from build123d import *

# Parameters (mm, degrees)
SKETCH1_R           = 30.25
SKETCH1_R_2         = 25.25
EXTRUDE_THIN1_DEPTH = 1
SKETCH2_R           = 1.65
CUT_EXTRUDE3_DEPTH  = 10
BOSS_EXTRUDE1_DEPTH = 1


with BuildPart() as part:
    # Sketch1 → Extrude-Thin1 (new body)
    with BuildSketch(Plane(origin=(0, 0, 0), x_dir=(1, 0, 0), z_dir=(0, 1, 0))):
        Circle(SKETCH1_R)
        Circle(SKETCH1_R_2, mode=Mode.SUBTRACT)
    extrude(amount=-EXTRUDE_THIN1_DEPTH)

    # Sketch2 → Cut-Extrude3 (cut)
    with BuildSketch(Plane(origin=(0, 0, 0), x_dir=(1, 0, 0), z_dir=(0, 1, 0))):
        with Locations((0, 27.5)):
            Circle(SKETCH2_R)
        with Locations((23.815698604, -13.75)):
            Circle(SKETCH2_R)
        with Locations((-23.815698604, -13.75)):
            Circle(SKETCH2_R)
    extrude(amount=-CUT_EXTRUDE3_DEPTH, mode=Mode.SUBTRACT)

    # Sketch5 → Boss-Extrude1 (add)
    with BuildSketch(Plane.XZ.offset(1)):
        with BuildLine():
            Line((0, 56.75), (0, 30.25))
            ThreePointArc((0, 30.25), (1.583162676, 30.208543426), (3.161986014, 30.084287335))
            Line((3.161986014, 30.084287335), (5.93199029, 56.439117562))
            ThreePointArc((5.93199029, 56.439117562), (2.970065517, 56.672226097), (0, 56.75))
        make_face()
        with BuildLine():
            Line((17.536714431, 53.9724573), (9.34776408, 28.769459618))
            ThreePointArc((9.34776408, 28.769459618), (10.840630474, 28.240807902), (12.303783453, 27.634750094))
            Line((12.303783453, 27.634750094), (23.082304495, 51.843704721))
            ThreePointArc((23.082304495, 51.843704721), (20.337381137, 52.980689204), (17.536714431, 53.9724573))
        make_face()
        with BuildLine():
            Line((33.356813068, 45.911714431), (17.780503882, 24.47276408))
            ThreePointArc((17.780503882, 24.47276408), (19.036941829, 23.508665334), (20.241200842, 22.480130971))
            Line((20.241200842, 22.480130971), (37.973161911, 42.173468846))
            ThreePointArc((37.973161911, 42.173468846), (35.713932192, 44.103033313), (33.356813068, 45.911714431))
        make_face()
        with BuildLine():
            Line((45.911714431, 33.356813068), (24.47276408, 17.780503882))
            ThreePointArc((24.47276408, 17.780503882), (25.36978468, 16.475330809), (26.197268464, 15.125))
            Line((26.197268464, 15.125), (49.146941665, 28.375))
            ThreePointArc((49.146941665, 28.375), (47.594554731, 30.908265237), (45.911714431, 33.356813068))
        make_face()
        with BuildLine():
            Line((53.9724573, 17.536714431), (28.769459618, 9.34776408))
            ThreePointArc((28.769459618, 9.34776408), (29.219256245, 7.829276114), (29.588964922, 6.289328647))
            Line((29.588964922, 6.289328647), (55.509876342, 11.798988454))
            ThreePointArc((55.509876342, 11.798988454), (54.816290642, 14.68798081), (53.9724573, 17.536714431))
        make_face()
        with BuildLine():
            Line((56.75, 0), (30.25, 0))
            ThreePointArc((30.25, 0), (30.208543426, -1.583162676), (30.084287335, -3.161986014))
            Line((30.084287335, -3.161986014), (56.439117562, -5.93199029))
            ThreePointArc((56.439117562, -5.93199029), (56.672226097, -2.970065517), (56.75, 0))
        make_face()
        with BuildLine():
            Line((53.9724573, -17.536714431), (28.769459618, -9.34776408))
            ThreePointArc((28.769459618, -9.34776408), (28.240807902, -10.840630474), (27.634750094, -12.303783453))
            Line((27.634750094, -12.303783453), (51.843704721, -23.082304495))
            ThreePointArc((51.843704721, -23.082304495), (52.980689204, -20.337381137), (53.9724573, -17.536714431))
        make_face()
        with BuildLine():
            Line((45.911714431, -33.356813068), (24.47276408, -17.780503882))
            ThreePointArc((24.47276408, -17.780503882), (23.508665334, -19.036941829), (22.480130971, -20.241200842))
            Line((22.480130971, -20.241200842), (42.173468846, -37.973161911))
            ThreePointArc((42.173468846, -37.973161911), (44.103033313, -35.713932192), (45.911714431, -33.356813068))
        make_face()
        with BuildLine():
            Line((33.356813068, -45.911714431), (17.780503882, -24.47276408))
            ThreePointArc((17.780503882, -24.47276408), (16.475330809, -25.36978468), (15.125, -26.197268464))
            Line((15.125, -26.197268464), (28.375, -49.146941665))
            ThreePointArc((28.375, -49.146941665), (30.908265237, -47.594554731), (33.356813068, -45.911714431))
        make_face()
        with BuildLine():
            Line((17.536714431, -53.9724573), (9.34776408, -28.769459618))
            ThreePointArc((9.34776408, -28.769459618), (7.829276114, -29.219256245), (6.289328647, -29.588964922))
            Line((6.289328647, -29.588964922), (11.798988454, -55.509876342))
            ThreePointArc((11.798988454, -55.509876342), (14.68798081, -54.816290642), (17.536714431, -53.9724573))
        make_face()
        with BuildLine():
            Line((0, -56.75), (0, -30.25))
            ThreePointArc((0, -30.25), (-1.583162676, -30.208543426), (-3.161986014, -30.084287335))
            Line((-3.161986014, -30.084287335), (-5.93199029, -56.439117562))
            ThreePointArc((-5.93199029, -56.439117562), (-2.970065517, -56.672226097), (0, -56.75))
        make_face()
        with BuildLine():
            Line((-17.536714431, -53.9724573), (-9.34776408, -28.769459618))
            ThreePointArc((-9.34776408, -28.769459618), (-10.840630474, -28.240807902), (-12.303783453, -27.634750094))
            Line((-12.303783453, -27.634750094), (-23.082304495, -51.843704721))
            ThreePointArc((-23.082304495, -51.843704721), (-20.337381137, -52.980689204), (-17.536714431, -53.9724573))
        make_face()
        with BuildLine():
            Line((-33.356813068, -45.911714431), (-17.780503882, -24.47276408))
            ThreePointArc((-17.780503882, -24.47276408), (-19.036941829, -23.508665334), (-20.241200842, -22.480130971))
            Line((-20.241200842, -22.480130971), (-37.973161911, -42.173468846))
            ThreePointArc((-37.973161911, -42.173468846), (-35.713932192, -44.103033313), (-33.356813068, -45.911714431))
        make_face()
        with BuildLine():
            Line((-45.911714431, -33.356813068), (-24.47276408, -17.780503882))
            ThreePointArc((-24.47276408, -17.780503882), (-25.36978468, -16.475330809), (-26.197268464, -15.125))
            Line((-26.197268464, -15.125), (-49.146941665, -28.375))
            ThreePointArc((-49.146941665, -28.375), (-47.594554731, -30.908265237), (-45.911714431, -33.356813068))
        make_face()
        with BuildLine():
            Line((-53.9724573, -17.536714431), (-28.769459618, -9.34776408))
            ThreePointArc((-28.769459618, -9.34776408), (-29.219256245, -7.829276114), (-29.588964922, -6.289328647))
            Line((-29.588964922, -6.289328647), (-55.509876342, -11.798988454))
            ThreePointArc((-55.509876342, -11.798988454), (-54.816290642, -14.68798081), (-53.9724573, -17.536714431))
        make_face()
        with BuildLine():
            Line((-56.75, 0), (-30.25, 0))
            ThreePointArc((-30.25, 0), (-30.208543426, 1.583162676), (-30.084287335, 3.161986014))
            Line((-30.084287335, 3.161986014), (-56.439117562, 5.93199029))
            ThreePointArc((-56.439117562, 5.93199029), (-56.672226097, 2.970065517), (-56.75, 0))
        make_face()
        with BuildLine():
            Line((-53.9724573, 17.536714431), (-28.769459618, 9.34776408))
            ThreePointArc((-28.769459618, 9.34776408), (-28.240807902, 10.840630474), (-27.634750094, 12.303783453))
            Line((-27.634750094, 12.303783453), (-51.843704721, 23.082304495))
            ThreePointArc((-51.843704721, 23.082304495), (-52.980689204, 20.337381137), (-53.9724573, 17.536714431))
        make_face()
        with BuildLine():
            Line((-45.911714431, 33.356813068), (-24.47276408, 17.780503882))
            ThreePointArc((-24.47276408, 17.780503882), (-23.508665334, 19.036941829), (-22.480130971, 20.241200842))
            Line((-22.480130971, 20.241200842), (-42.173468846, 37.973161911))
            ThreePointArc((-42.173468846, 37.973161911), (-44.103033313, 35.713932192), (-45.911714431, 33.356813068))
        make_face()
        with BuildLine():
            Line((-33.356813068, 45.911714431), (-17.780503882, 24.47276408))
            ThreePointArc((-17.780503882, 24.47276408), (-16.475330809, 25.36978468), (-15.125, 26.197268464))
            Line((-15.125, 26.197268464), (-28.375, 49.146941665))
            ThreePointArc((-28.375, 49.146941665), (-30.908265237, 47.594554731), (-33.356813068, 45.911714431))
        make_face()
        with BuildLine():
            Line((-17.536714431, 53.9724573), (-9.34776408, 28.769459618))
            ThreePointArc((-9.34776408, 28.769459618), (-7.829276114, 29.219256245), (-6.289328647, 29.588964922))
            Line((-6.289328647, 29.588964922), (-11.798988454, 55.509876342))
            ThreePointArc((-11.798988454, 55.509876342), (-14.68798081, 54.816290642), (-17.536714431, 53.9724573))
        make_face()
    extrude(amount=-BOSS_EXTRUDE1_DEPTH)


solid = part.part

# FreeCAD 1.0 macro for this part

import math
import FreeCAD as App
import Part
import Sketcher
Q = App.Units.Quantity

doc = App.newDocument("Part")
body = doc.addObject("PartDesign::Body", "Body")

# Sketch on XZ plane
sketch1 = body.newObject("Sketcher::SketchObject", "Sketch")
sketch1.AttachmentSupport = (doc.getObject("XZ_Plane"), [""])
sketch1.MapMode = "FlatFace"
sketch1.addGeometry(Part.Circle(App.Vector(0, 0, 0), App.Vector(0, 0, 1), 30.25), False)
sketch1.addGeometry(Part.Circle(App.Vector(0, 0, 0), App.Vector(0, 0, 1), 25.25), False)
sketch1.addConstraint(Sketcher.Constraint("Coincident", 0, 3, -1, 1))
sketch1.addConstraint(Sketcher.Constraint("Coincident", 1, 3, -1, 1))
sketch1.addConstraint(Sketcher.Constraint("Diameter", 0, 60.5))
sketch1.addConstraint(Sketcher.Constraint("Diameter", 1, 50.5))
pad1 = body.newObject("PartDesign::Pad", "Pad")
pad1.Profile = sketch1
pad1.Length = 1

# Sketch on XZ plane
sketch2 = body.newObject("Sketcher::SketchObject", "Sketch001")
sketch2.AttachmentSupport = (doc.getObject("XZ_Plane"), [""])
sketch2.MapMode = "FlatFace"
sketch2.addGeometry(Part.Circle(App.Vector(0, -27.5, 0), App.Vector(0, 0, 1), 1.65), False)
sketch2.addGeometry(Part.Circle(App.Vector(23.815699, 13.75, 0), App.Vector(0, 0, 1), 1.65), False)
sketch2.addGeometry(Part.Circle(App.Vector(-23.815699, 13.75, 0), App.Vector(0, 0, 1), 1.65), False)
sketch2.addConstraint(Sketcher.Constraint("Equal", 0, 1))
sketch2.addConstraint(Sketcher.Constraint("Equal", 1, 2))
sketch2.addConstraint(Sketcher.Constraint("Symmetric", 1, 3, 2, 3, -2))
sketch2.addConstraint(Sketcher.Constraint("PointOnObject", 0, 3, -2))
sketch2.addConstraint(Sketcher.Constraint("Diameter", 0, 3.3))
sketch2.addConstraint(Sketcher.Constraint("DistanceY", 0, 3, -1, 1, 27.5))
sketch2.addConstraint(Sketcher.Constraint("DistanceY", -1, 1, 1, 3, 13.75))
sketch2.addConstraint(Sketcher.Constraint("DistanceX", -1, 1, 1, 3, 23.815699))
pocket1 = body.newObject("PartDesign::Pocket", "Pocket")
pocket1.Profile = sketch2
pocket1.Length = 10
pocket1.Reversed = True

# Sketch on XZ plane
sketch3 = body.newObject("Sketcher::SketchObject", "Sketch002")
sketch3.AttachmentSupport = (doc.getObject("XZ_Plane"), [""])
sketch3.MapMode = "FlatFace"
sketch3.AttachmentOffset = App.Placement(App.Vector(0, 0, 1), App.Rotation())
sketch3.addGeometry(Part.LineSegment(App.Vector(0, 56.75, 0), App.Vector(0, 30.25, 0)), False)
sketch3.addGeometry(Part.ArcOfCircle(Part.Circle(App.Vector(0, 0, 0), App.Vector(0, 0, 1), 30.25), math.radians(84), math.radians(90)), False)
sketch3.addGeometry(Part.LineSegment(App.Vector(3.161986, 30.084287, 0), App.Vector(5.93199, 56.439118, 0)), False)
sketch3.addGeometry(Part.ArcOfCircle(Part.Circle(App.Vector(0, 0, 0), App.Vector(0, 0, 1), 56.75), math.radians(84), math.radians(90)), False)
sketch3.addGeometry(Part.LineSegment(App.Vector(17.536714, 53.972457, 0), App.Vector(9.347764, 28.76946, 0)), False)
sketch3.addGeometry(Part.ArcOfCircle(Part.Circle(App.Vector(0, 0, 0), App.Vector(0, 0, 1), 30.25), math.radians(66), math.radians(72)), False)
sketch3.addGeometry(Part.LineSegment(App.Vector(12.303783, 27.63475, 0), App.Vector(23.082304, 51.843705, 0)), False)
sketch3.addGeometry(Part.ArcOfCircle(Part.Circle(App.Vector(0, 0, 0), App.Vector(0, 0, 1), 56.75), math.radians(66), math.radians(72)), False)
sketch3.addGeometry(Part.LineSegment(App.Vector(33.356813, 45.911714, 0), App.Vector(17.780504, 24.472764, 0)), False)
sketch3.addGeometry(Part.ArcOfCircle(Part.Circle(App.Vector(0, 0, 0), App.Vector(0, 0, 1), 30.25), math.radians(48), math.radians(54)), False)
sketch3.addGeometry(Part.LineSegment(App.Vector(20.241201, 22.480131, 0), App.Vector(37.973162, 42.173469, 0)), False)
sketch3.addGeometry(Part.ArcOfCircle(Part.Circle(App.Vector(0, 0, 0), App.Vector(0, 0, 1), 56.75), math.radians(48), math.radians(54)), False)
sketch3.addGeometry(Part.LineSegment(App.Vector(45.911714, 33.356813, 0), App.Vector(24.472764, 17.780504, 0)), False)
sketch3.addGeometry(Part.ArcOfCircle(Part.Circle(App.Vector(0, 0, 0), App.Vector(0, 0, 1), 30.25), math.radians(30), math.radians(36)), False)
sketch3.addGeometry(Part.LineSegment(App.Vector(26.197268, 15.125, 0), App.Vector(49.146942, 28.375, 0)), False)
sketch3.addGeometry(Part.ArcOfCircle(Part.Circle(App.Vector(0, 0, 0), App.Vector(0, 0, 1), 56.75), math.radians(30), math.radians(36)), False)
sketch3.addGeometry(Part.LineSegment(App.Vector(53.972457, 17.536714, 0), App.Vector(28.76946, 9.347764, 0)), False)
sketch3.addGeometry(Part.ArcOfCircle(Part.Circle(App.Vector(0, 0, 0), App.Vector(0, 0, 1), 30.25), math.radians(12), math.radians(18)), False)
sketch3.addGeometry(Part.LineSegment(App.Vector(29.588965, 6.289329, 0), App.Vector(55.509876, 11.798988, 0)), False)
sketch3.addGeometry(Part.ArcOfCircle(Part.Circle(App.Vector(0, 0, 0), App.Vector(0, 0, 1), 56.75), math.radians(12), math.radians(18)), False)
sketch3.addGeometry(Part.LineSegment(App.Vector(56.75, 0, 0), App.Vector(30.25, 0, 0)), False)
sketch3.addGeometry(Part.ArcOfCircle(Part.Circle(App.Vector(0, 0, 0), App.Vector(0, 0, 1), 30.25), math.radians(-6), math.radians(0)), False)
sketch3.addGeometry(Part.LineSegment(App.Vector(30.084287, -3.161986, 0), App.Vector(56.439118, -5.93199, 0)), False)
sketch3.addGeometry(Part.ArcOfCircle(Part.Circle(App.Vector(0, 0, 0), App.Vector(0, 0, 1), 56.75), math.radians(-6), math.radians(0)), False)
sketch3.addGeometry(Part.LineSegment(App.Vector(53.972457, -17.536714, 0), App.Vector(28.76946, -9.347764, 0)), False)
sketch3.addGeometry(Part.ArcOfCircle(Part.Circle(App.Vector(0, 0, 0), App.Vector(0, 0, 1), 30.25), math.radians(-24), math.radians(-18)), False)
sketch3.addGeometry(Part.LineSegment(App.Vector(27.63475, -12.303783, 0), App.Vector(51.843705, -23.082304, 0)), False)
sketch3.addGeometry(Part.ArcOfCircle(Part.Circle(App.Vector(0, 0, 0), App.Vector(0, 0, 1), 56.75), math.radians(-24), math.radians(-18)), False)
sketch3.addGeometry(Part.LineSegment(App.Vector(45.911714, -33.356813, 0), App.Vector(24.472764, -17.780504, 0)), False)
sketch3.addGeometry(Part.ArcOfCircle(Part.Circle(App.Vector(0, 0, 0), App.Vector(0, 0, 1), 30.25), math.radians(-42), math.radians(-36)), False)
sketch3.addGeometry(Part.LineSegment(App.Vector(22.480131, -20.241201, 0), App.Vector(42.173469, -37.973162, 0)), False)
sketch3.addGeometry(Part.ArcOfCircle(Part.Circle(App.Vector(0, 0, 0), App.Vector(0, 0, 1), 56.75), math.radians(-42), math.radians(-36)), False)
sketch3.addGeometry(Part.LineSegment(App.Vector(33.356813, -45.911714, 0), App.Vector(17.780504, -24.472764, 0)), False)
sketch3.addGeometry(Part.ArcOfCircle(Part.Circle(App.Vector(0, 0, 0), App.Vector(0, 0, 1), 30.25), math.radians(-60), math.radians(-54)), False)
sketch3.addGeometry(Part.LineSegment(App.Vector(15.125, -26.197268, 0), App.Vector(28.375, -49.146942, 0)), False)
sketch3.addGeometry(Part.ArcOfCircle(Part.Circle(App.Vector(0, 0, 0), App.Vector(0, 0, 1), 56.75), math.radians(-60), math.radians(-54)), False)
sketch3.addGeometry(Part.LineSegment(App.Vector(17.536714, -53.972457, 0), App.Vector(9.347764, -28.76946, 0)), False)
sketch3.addGeometry(Part.ArcOfCircle(Part.Circle(App.Vector(0, 0, 0), App.Vector(0, 0, 1), 30.25), math.radians(-78), math.radians(-72)), False)
sketch3.addGeometry(Part.LineSegment(App.Vector(6.289329, -29.588965, 0), App.Vector(11.798988, -55.509876, 0)), False)
sketch3.addGeometry(Part.ArcOfCircle(Part.Circle(App.Vector(0, 0, 0), App.Vector(0, 0, 1), 56.75), math.radians(-78), math.radians(-72)), False)
sketch3.addGeometry(Part.LineSegment(App.Vector(0, -56.75, 0), App.Vector(0, -30.25, 0)), False)
sketch3.addGeometry(Part.ArcOfCircle(Part.Circle(App.Vector(0, 0, 0), App.Vector(0, 0, 1), 30.25), math.radians(-96), math.radians(-90)), False)
sketch3.addGeometry(Part.LineSegment(App.Vector(-3.161986, -30.084287, 0), App.Vector(-5.93199, -56.439118, 0)), False)
sketch3.addGeometry(Part.ArcOfCircle(Part.Circle(App.Vector(0, 0, 0), App.Vector(0, 0, 1), 56.75), math.radians(-96), math.radians(-90)), False)
sketch3.addGeometry(Part.LineSegment(App.Vector(-17.536714, -53.972457, 0), App.Vector(-9.347764, -28.76946, 0)), False)
sketch3.addGeometry(Part.ArcOfCircle(Part.Circle(App.Vector(0, 0, 0), App.Vector(0, 0, 1), 30.25), math.radians(-114), math.radians(-108)), False)
sketch3.addGeometry(Part.LineSegment(App.Vector(-12.303783, -27.63475, 0), App.Vector(-23.082304, -51.843705, 0)), False)
sketch3.addGeometry(Part.ArcOfCircle(Part.Circle(App.Vector(0, 0, 0), App.Vector(0, 0, 1), 56.75), math.radians(-114), math.radians(-108)), False)
sketch3.addGeometry(Part.LineSegment(App.Vector(-33.356813, -45.911714, 0), App.Vector(-17.780504, -24.472764, 0)), False)
sketch3.addGeometry(Part.ArcOfCircle(Part.Circle(App.Vector(0, 0, 0), App.Vector(0, 0, 1), 30.25), math.radians(-132), math.radians(-126)), False)
sketch3.addGeometry(Part.LineSegment(App.Vector(-20.241201, -22.480131, 0), App.Vector(-37.973162, -42.173469, 0)), False)
sketch3.addGeometry(Part.ArcOfCircle(Part.Circle(App.Vector(0, 0, 0), App.Vector(0, 0, 1), 56.75), math.radians(-132), math.radians(-126)), False)
sketch3.addGeometry(Part.LineSegment(App.Vector(-45.911714, -33.356813, 0), App.Vector(-24.472764, -17.780504, 0)), False)
sketch3.addGeometry(Part.ArcOfCircle(Part.Circle(App.Vector(0, 0, 0), App.Vector(0, 0, 1), 30.25), math.radians(-150), math.radians(-144)), False)
sketch3.addGeometry(Part.LineSegment(App.Vector(-26.197268, -15.125, 0), App.Vector(-49.146942, -28.375, 0)), False)
sketch3.addGeometry(Part.ArcOfCircle(Part.Circle(App.Vector(0, 0, 0), App.Vector(0, 0, 1), 56.75), math.radians(-150), math.radians(-144)), False)
sketch3.addGeometry(Part.LineSegment(App.Vector(-53.972457, -17.536714, 0), App.Vector(-28.76946, -9.347764, 0)), False)
sketch3.addGeometry(Part.ArcOfCircle(Part.Circle(App.Vector(0, 0, 0), App.Vector(0, 0, 1), 30.25), math.radians(-168), math.radians(-162)), False)
sketch3.addGeometry(Part.LineSegment(App.Vector(-29.588965, -6.289329, 0), App.Vector(-55.509876, -11.798988, 0)), False)
sketch3.addGeometry(Part.ArcOfCircle(Part.Circle(App.Vector(0, 0, 0), App.Vector(0, 0, 1), 56.75), math.radians(-168), math.radians(-162)), False)
sketch3.addGeometry(Part.LineSegment(App.Vector(-56.75, 0, 0), App.Vector(-30.25, 0, 0)), False)
sketch3.addGeometry(Part.ArcOfCircle(Part.Circle(App.Vector(0, 0, 0), App.Vector(0, 0, 1), 30.25), math.radians(174), math.radians(180)), False)
sketch3.addGeometry(Part.LineSegment(App.Vector(-30.084287, 3.161986, 0), App.Vector(-56.439118, 5.93199, 0)), False)
sketch3.addGeometry(Part.ArcOfCircle(Part.Circle(App.Vector(0, 0, 0), App.Vector(0, 0, 1), 56.75), math.radians(174), math.radians(180)), False)
sketch3.addGeometry(Part.LineSegment(App.Vector(-53.972457, 17.536714, 0), App.Vector(-28.76946, 9.347764, 0)), False)
sketch3.addGeometry(Part.ArcOfCircle(Part.Circle(App.Vector(0, 0, 0), App.Vector(0, 0, 1), 30.25), math.radians(156), math.radians(162)), False)
sketch3.addGeometry(Part.LineSegment(App.Vector(-27.63475, 12.303783, 0), App.Vector(-51.843705, 23.082304, 0)), False)
sketch3.addGeometry(Part.ArcOfCircle(Part.Circle(App.Vector(0, 0, 0), App.Vector(0, 0, 1), 56.75), math.radians(156), math.radians(162)), False)
sketch3.addGeometry(Part.LineSegment(App.Vector(-45.911714, 33.356813, 0), App.Vector(-24.472764, 17.780504, 0)), False)
sketch3.addGeometry(Part.ArcOfCircle(Part.Circle(App.Vector(0, 0, 0), App.Vector(0, 0, 1), 30.25), math.radians(138), math.radians(144)), False)
sketch3.addGeometry(Part.LineSegment(App.Vector(-22.480131, 20.241201, 0), App.Vector(-42.173469, 37.973162, 0)), False)
sketch3.addGeometry(Part.ArcOfCircle(Part.Circle(App.Vector(0, 0, 0), App.Vector(0, 0, 1), 56.75), math.radians(138), math.radians(144)), False)
sketch3.addGeometry(Part.LineSegment(App.Vector(-33.356813, 45.911714, 0), App.Vector(-17.780504, 24.472764, 0)), False)
sketch3.addGeometry(Part.ArcOfCircle(Part.Circle(App.Vector(0, 0, 0), App.Vector(0, 0, 1), 30.25), math.radians(120), math.radians(126)), False)
sketch3.addGeometry(Part.LineSegment(App.Vector(-15.125, 26.197268, 0), App.Vector(-28.375, 49.146942, 0)), False)
sketch3.addGeometry(Part.ArcOfCircle(Part.Circle(App.Vector(0, 0, 0), App.Vector(0, 0, 1), 56.75), math.radians(120), math.radians(126)), False)
sketch3.addGeometry(Part.LineSegment(App.Vector(-17.536714, 53.972457, 0), App.Vector(-9.347764, 28.76946, 0)), False)
sketch3.addGeometry(Part.ArcOfCircle(Part.Circle(App.Vector(0, 0, 0), App.Vector(0, 0, 1), 30.25), math.radians(102), math.radians(108)), False)
sketch3.addGeometry(Part.LineSegment(App.Vector(-6.289329, 29.588965, 0), App.Vector(-11.798988, 55.509876, 0)), False)
sketch3.addGeometry(Part.ArcOfCircle(Part.Circle(App.Vector(0, 0, 0), App.Vector(0, 0, 1), 56.75), math.radians(102), math.radians(108)), False)
sketch3.addConstraint(Sketcher.Constraint("Coincident", 0, 2, 1, 2))
sketch3.addConstraint(Sketcher.Constraint("Coincident", 1, 1, 2, 1))
sketch3.addConstraint(Sketcher.Constraint("Coincident", 2, 2, 3, 1))
sketch3.addConstraint(Sketcher.Constraint("Coincident", 3, 2, 0, 1))
sketch3.addConstraint(Sketcher.Constraint("Coincident", 4, 2, 5, 2))
sketch3.addConstraint(Sketcher.Constraint("Coincident", 5, 1, 6, 1))
sketch3.addConstraint(Sketcher.Constraint("Coincident", 6, 2, 7, 1))
sketch3.addConstraint(Sketcher.Constraint("Coincident", 7, 2, 4, 1))
sketch3.addConstraint(Sketcher.Constraint("Coincident", 8, 2, 9, 2))
sketch3.addConstraint(Sketcher.Constraint("Coincident", 9, 1, 10, 1))
sketch3.addConstraint(Sketcher.Constraint("Coincident", 10, 2, 11, 1))
sketch3.addConstraint(Sketcher.Constraint("Coincident", 11, 2, 8, 1))
sketch3.addConstraint(Sketcher.Constraint("Coincident", 12, 2, 13, 2))
sketch3.addConstraint(Sketcher.Constraint("Coincident", 13, 1, 14, 1))
sketch3.addConstraint(Sketcher.Constraint("Coincident", 14, 2, 15, 1))
sketch3.addConstraint(Sketcher.Constraint("Coincident", 15, 2, 12, 1))
sketch3.addConstraint(Sketcher.Constraint("Coincident", 16, 2, 17, 2))
sketch3.addConstraint(Sketcher.Constraint("Coincident", 17, 1, 18, 1))
sketch3.addConstraint(Sketcher.Constraint("Coincident", 18, 2, 19, 1))
sketch3.addConstraint(Sketcher.Constraint("Coincident", 19, 2, 16, 1))
sketch3.addConstraint(Sketcher.Constraint("Coincident", 20, 2, 21, 2))
sketch3.addConstraint(Sketcher.Constraint("Coincident", 21, 1, 22, 1))
sketch3.addConstraint(Sketcher.Constraint("Coincident", 22, 2, 23, 1))
sketch3.addConstraint(Sketcher.Constraint("Coincident", 23, 2, 20, 1))
sketch3.addConstraint(Sketcher.Constraint("Coincident", 24, 2, 25, 2))
sketch3.addConstraint(Sketcher.Constraint("Coincident", 25, 1, 26, 1))
sketch3.addConstraint(Sketcher.Constraint("Coincident", 26, 2, 27, 1))
sketch3.addConstraint(Sketcher.Constraint("Coincident", 27, 2, 24, 1))
sketch3.addConstraint(Sketcher.Constraint("Coincident", 28, 2, 29, 2))
sketch3.addConstraint(Sketcher.Constraint("Coincident", 29, 1, 30, 1))
sketch3.addConstraint(Sketcher.Constraint("Coincident", 30, 2, 31, 1))
sketch3.addConstraint(Sketcher.Constraint("Coincident", 31, 2, 28, 1))
sketch3.addConstraint(Sketcher.Constraint("Coincident", 32, 2, 33, 2))
sketch3.addConstraint(Sketcher.Constraint("Coincident", 33, 1, 34, 1))
sketch3.addConstraint(Sketcher.Constraint("Coincident", 34, 2, 35, 1))
sketch3.addConstraint(Sketcher.Constraint("Coincident", 35, 2, 32, 1))
sketch3.addConstraint(Sketcher.Constraint("Coincident", 36, 2, 37, 2))
sketch3.addConstraint(Sketcher.Constraint("Coincident", 37, 1, 38, 1))
sketch3.addConstraint(Sketcher.Constraint("Coincident", 38, 2, 39, 1))
sketch3.addConstraint(Sketcher.Constraint("Coincident", 39, 2, 36, 1))
sketch3.addConstraint(Sketcher.Constraint("Coincident", 40, 2, 41, 2))
sketch3.addConstraint(Sketcher.Constraint("Coincident", 41, 1, 42, 1))
sketch3.addConstraint(Sketcher.Constraint("Coincident", 42, 2, 43, 1))
sketch3.addConstraint(Sketcher.Constraint("Coincident", 43, 2, 40, 1))
sketch3.addConstraint(Sketcher.Constraint("Coincident", 44, 2, 45, 2))
sketch3.addConstraint(Sketcher.Constraint("Coincident", 45, 1, 46, 1))
sketch3.addConstraint(Sketcher.Constraint("Coincident", 46, 2, 47, 1))
sketch3.addConstraint(Sketcher.Constraint("Coincident", 47, 2, 44, 1))
sketch3.addConstraint(Sketcher.Constraint("Coincident", 48, 2, 49, 2))
sketch3.addConstraint(Sketcher.Constraint("Coincident", 49, 1, 50, 1))
sketch3.addConstraint(Sketcher.Constraint("Coincident", 50, 2, 51, 1))
sketch3.addConstraint(Sketcher.Constraint("Coincident", 51, 2, 48, 1))
sketch3.addConstraint(Sketcher.Constraint("Coincident", 52, 2, 53, 2))
sketch3.addConstraint(Sketcher.Constraint("Coincident", 53, 1, 54, 1))
sketch3.addConstraint(Sketcher.Constraint("Coincident", 54, 2, 55, 1))
sketch3.addConstraint(Sketcher.Constraint("Coincident", 55, 2, 52, 1))
sketch3.addConstraint(Sketcher.Constraint("Coincident", 56, 2, 57, 2))
sketch3.addConstraint(Sketcher.Constraint("Coincident", 57, 1, 58, 1))
sketch3.addConstraint(Sketcher.Constraint("Coincident", 58, 2, 59, 1))
sketch3.addConstraint(Sketcher.Constraint("Coincident", 59, 2, 56, 1))
sketch3.addConstraint(Sketcher.Constraint("Coincident", 60, 2, 61, 2))
sketch3.addConstraint(Sketcher.Constraint("Coincident", 61, 1, 62, 1))
sketch3.addConstraint(Sketcher.Constraint("Coincident", 62, 2, 63, 1))
sketch3.addConstraint(Sketcher.Constraint("Coincident", 63, 2, 60, 1))
sketch3.addConstraint(Sketcher.Constraint("Coincident", 64, 2, 65, 2))
sketch3.addConstraint(Sketcher.Constraint("Coincident", 65, 1, 66, 1))
sketch3.addConstraint(Sketcher.Constraint("Coincident", 66, 2, 67, 1))
sketch3.addConstraint(Sketcher.Constraint("Coincident", 67, 2, 64, 1))
sketch3.addConstraint(Sketcher.Constraint("Coincident", 68, 2, 69, 2))
sketch3.addConstraint(Sketcher.Constraint("Coincident", 69, 1, 70, 1))
sketch3.addConstraint(Sketcher.Constraint("Coincident", 70, 2, 71, 1))
sketch3.addConstraint(Sketcher.Constraint("Coincident", 71, 2, 68, 1))
sketch3.addConstraint(Sketcher.Constraint("Coincident", 72, 2, 73, 2))
sketch3.addConstraint(Sketcher.Constraint("Coincident", 73, 1, 74, 1))
sketch3.addConstraint(Sketcher.Constraint("Coincident", 74, 2, 75, 1))
sketch3.addConstraint(Sketcher.Constraint("Coincident", 75, 2, 72, 1))
sketch3.addConstraint(Sketcher.Constraint("Coincident", 76, 2, 77, 2))
sketch3.addConstraint(Sketcher.Constraint("Coincident", 77, 1, 78, 1))
sketch3.addConstraint(Sketcher.Constraint("Coincident", 78, 2, 79, 1))
sketch3.addConstraint(Sketcher.Constraint("Coincident", 79, 2, 76, 1))
sketch3.addConstraint(Sketcher.Constraint("Vertical", 0))
sketch3.addConstraint(Sketcher.Constraint("Horizontal", 20))
sketch3.addConstraint(Sketcher.Constraint("Vertical", 40))
sketch3.addConstraint(Sketcher.Constraint("Horizontal", 60))
sketch3.addConstraint(Sketcher.Constraint("Coincident", 1, 3, -1, 1))
sketch3.addConstraint(Sketcher.Constraint("Coincident", 3, 3, -1, 1))
sketch3.addConstraint(Sketcher.Constraint("Coincident", 5, 3, -1, 1))
sketch3.addConstraint(Sketcher.Constraint("Coincident", 7, 3, -1, 1))
sketch3.addConstraint(Sketcher.Constraint("Coincident", 9, 3, -1, 1))
sketch3.addConstraint(Sketcher.Constraint("Coincident", 11, 3, -1, 1))
sketch3.addConstraint(Sketcher.Constraint("Coincident", 13, 3, -1, 1))
sketch3.addConstraint(Sketcher.Constraint("Coincident", 15, 3, -1, 1))
sketch3.addConstraint(Sketcher.Constraint("Coincident", 17, 3, -1, 1))
sketch3.addConstraint(Sketcher.Constraint("Coincident", 19, 3, -1, 1))
sketch3.addConstraint(Sketcher.Constraint("Coincident", 21, 3, -1, 1))
sketch3.addConstraint(Sketcher.Constraint("Coincident", 23, 3, -1, 1))
sketch3.addConstraint(Sketcher.Constraint("Coincident", 25, 3, -1, 1))
sketch3.addConstraint(Sketcher.Constraint("Coincident", 27, 3, -1, 1))
sketch3.addConstraint(Sketcher.Constraint("Coincident", 29, 3, -1, 1))
sketch3.addConstraint(Sketcher.Constraint("Coincident", 31, 3, -1, 1))
sketch3.addConstraint(Sketcher.Constraint("Coincident", 33, 3, -1, 1))
sketch3.addConstraint(Sketcher.Constraint("Coincident", 35, 3, -1, 1))
sketch3.addConstraint(Sketcher.Constraint("Coincident", 37, 3, -1, 1))
sketch3.addConstraint(Sketcher.Constraint("Coincident", 39, 3, -1, 1))
sketch3.addConstraint(Sketcher.Constraint("Coincident", 41, 3, -1, 1))
sketch3.addConstraint(Sketcher.Constraint("Coincident", 43, 3, -1, 1))
sketch3.addConstraint(Sketcher.Constraint("Coincident", 45, 3, -1, 1))
sketch3.addConstraint(Sketcher.Constraint("Coincident", 47, 3, -1, 1))
sketch3.addConstraint(Sketcher.Constraint("Coincident", 49, 3, -1, 1))
sketch3.addConstraint(Sketcher.Constraint("Coincident", 51, 3, -1, 1))
sketch3.addConstraint(Sketcher.Constraint("Coincident", 53, 3, -1, 1))
sketch3.addConstraint(Sketcher.Constraint("Coincident", 55, 3, -1, 1))
sketch3.addConstraint(Sketcher.Constraint("Coincident", 57, 3, -1, 1))
sketch3.addConstraint(Sketcher.Constraint("Coincident", 59, 3, -1, 1))
sketch3.addConstraint(Sketcher.Constraint("Coincident", 61, 3, -1, 1))
sketch3.addConstraint(Sketcher.Constraint("Coincident", 63, 3, -1, 1))
sketch3.addConstraint(Sketcher.Constraint("Coincident", 65, 3, -1, 1))
sketch3.addConstraint(Sketcher.Constraint("Coincident", 67, 3, -1, 1))
sketch3.addConstraint(Sketcher.Constraint("Coincident", 69, 3, -1, 1))
sketch3.addConstraint(Sketcher.Constraint("Coincident", 71, 3, -1, 1))
sketch3.addConstraint(Sketcher.Constraint("Coincident", 73, 3, -1, 1))
sketch3.addConstraint(Sketcher.Constraint("Coincident", 75, 3, -1, 1))
sketch3.addConstraint(Sketcher.Constraint("Coincident", 77, 3, -1, 1))
sketch3.addConstraint(Sketcher.Constraint("Coincident", 79, 3, -1, 1))
sketch3.addConstraint(Sketcher.Constraint("Equal", 1, 5))
sketch3.addConstraint(Sketcher.Constraint("Equal", 3, 7))
sketch3.addConstraint(Sketcher.Constraint("Equal", 5, 9))
sketch3.addConstraint(Sketcher.Constraint("Equal", 7, 11))
sketch3.addConstraint(Sketcher.Constraint("Equal", 9, 13))
sketch3.addConstraint(Sketcher.Constraint("Equal", 11, 15))
sketch3.addConstraint(Sketcher.Constraint("Equal", 13, 17))
sketch3.addConstraint(Sketcher.Constraint("Equal", 15, 19))
sketch3.addConstraint(Sketcher.Constraint("Equal", 17, 21))
sketch3.addConstraint(Sketcher.Constraint("Equal", 19, 23))
sketch3.addConstraint(Sketcher.Constraint("Equal", 21, 25))
sketch3.addConstraint(Sketcher.Constraint("Equal", 23, 27))
sketch3.addConstraint(Sketcher.Constraint("Equal", 25, 29))
sketch3.addConstraint(Sketcher.Constraint("Equal", 27, 31))
sketch3.addConstraint(Sketcher.Constraint("Equal", 29, 33))
sketch3.addConstraint(Sketcher.Constraint("Equal", 31, 35))
sketch3.addConstraint(Sketcher.Constraint("Equal", 33, 37))
sketch3.addConstraint(Sketcher.Constraint("Equal", 35, 39))
sketch3.addConstraint(Sketcher.Constraint("Equal", 37, 41))
sketch3.addConstraint(Sketcher.Constraint("Equal", 39, 43))
sketch3.addConstraint(Sketcher.Constraint("Equal", 41, 45))
sketch3.addConstraint(Sketcher.Constraint("Equal", 43, 47))
sketch3.addConstraint(Sketcher.Constraint("Equal", 45, 49))
sketch3.addConstraint(Sketcher.Constraint("Equal", 47, 51))
sketch3.addConstraint(Sketcher.Constraint("Equal", 49, 53))
sketch3.addConstraint(Sketcher.Constraint("Equal", 51, 55))
sketch3.addConstraint(Sketcher.Constraint("Equal", 53, 57))
sketch3.addConstraint(Sketcher.Constraint("Equal", 55, 59))
sketch3.addConstraint(Sketcher.Constraint("Equal", 57, 61))
sketch3.addConstraint(Sketcher.Constraint("Equal", 59, 63))
sketch3.addConstraint(Sketcher.Constraint("Equal", 61, 65))
sketch3.addConstraint(Sketcher.Constraint("Equal", 63, 67))
sketch3.addConstraint(Sketcher.Constraint("Equal", 65, 69))
sketch3.addConstraint(Sketcher.Constraint("Equal", 67, 71))
sketch3.addConstraint(Sketcher.Constraint("Equal", 69, 73))
sketch3.addConstraint(Sketcher.Constraint("Equal", 71, 75))
sketch3.addConstraint(Sketcher.Constraint("Equal", 73, 77))
sketch3.addConstraint(Sketcher.Constraint("Equal", 75, 79))
sketch3.addConstraint(Sketcher.Constraint("PointOnObject", 0, 2, -2))
sketch3.addConstraint(Sketcher.Constraint("PointOnObject", 20, 2, -1))
sketch3.addConstraint(Sketcher.Constraint("PointOnObject", 40, 2, -2))
sketch3.addConstraint(Sketcher.Constraint("PointOnObject", 60, 2, -1))
sketch3.addConstraint(Sketcher.Constraint("Perpendicular", 2, 22))
sketch3.addConstraint(Sketcher.Constraint("Perpendicular", 4, 24))
sketch3.addConstraint(Sketcher.Constraint("Perpendicular", 6, 26))
sketch3.addConstraint(Sketcher.Constraint("Perpendicular", 8, 28))
sketch3.addConstraint(Sketcher.Constraint("Perpendicular", 10, 30))
sketch3.addConstraint(Sketcher.Constraint("Perpendicular", 12, 32))
sketch3.addConstraint(Sketcher.Constraint("Perpendicular", 14, 34))
sketch3.addConstraint(Sketcher.Constraint("Perpendicular", 16, 36))
sketch3.addConstraint(Sketcher.Constraint("Perpendicular", 18, 38))
sketch3.addConstraint(Sketcher.Constraint("Perpendicular", 22, 42))
sketch3.addConstraint(Sketcher.Constraint("Perpendicular", 24, 44))
sketch3.addConstraint(Sketcher.Constraint("Perpendicular", 26, 46))
sketch3.addConstraint(Sketcher.Constraint("Perpendicular", 28, 48))
sketch3.addConstraint(Sketcher.Constraint("Perpendicular", 30, 50))
sketch3.addConstraint(Sketcher.Constraint("Perpendicular", 32, 52))
sketch3.addConstraint(Sketcher.Constraint("Perpendicular", 34, 54))
sketch3.addConstraint(Sketcher.Constraint("Perpendicular", 36, 56))
sketch3.addConstraint(Sketcher.Constraint("Perpendicular", 38, 58))
sketch3.addConstraint(Sketcher.Constraint("Perpendicular", 42, 62))
sketch3.addConstraint(Sketcher.Constraint("Perpendicular", 44, 64))
sketch3.addConstraint(Sketcher.Constraint("Perpendicular", 46, 66))
sketch3.addConstraint(Sketcher.Constraint("Perpendicular", 48, 68))
sketch3.addConstraint(Sketcher.Constraint("Perpendicular", 50, 70))
sketch3.addConstraint(Sketcher.Constraint("Perpendicular", 52, 72))
sketch3.addConstraint(Sketcher.Constraint("Perpendicular", 54, 74))
sketch3.addConstraint(Sketcher.Constraint("Perpendicular", 56, 76))
sketch3.addConstraint(Sketcher.Constraint("Perpendicular", 58, 78))
sketch3.addConstraint(Sketcher.Constraint("Horizontal", 36, 2, 44, 2))
sketch3.addConstraint(Sketcher.Constraint("Horizontal", 39, 2, 47, 2))
sketch3.addConstraint(Sketcher.Constraint("Horizontal", 32, 2, 48, 2))
sketch3.addConstraint(Sketcher.Constraint("Horizontal", 35, 2, 51, 2))
sketch3.addConstraint(Sketcher.Constraint("Horizontal", 28, 2, 52, 2))
sketch3.addConstraint(Sketcher.Constraint("Horizontal", 24, 2, 56, 2))
sketch3.addConstraint(Sketcher.Constraint("Horizontal", 16, 2, 64, 2))
sketch3.addConstraint(Sketcher.Constraint("Horizontal", 12, 2, 68, 2))
sketch3.addConstraint(Sketcher.Constraint("Horizontal", 8, 2, 72, 2))
sketch3.addConstraint(Sketcher.Constraint("Horizontal", 4, 2, 76, 2))
sketch3.addConstraint(Sketcher.Constraint("Vertical", 16, 2, 24, 2))
sketch3.addConstraint(Sketcher.Constraint("Vertical", 12, 2, 28, 2))
sketch3.addConstraint(Sketcher.Constraint("Vertical", 8, 2, 32, 2))
sketch3.addConstraint(Sketcher.Constraint("Vertical", 4, 2, 36, 2))
sketch3.addConstraint(Sketcher.Constraint("Angle", 2, Q("84 deg")))
sketch3.addConstraint(Sketcher.Constraint("Angle", 4, Q("-108 deg")))
sketch3.addConstraint(Sketcher.Constraint("Angle", 6, Q("66 deg")))
sketch3.addConstraint(Sketcher.Constraint("Angle", 8, Q("-126 deg")))
sketch3.addConstraint(Sketcher.Constraint("Angle", 10, Q("48 deg")))
sketch3.addConstraint(Sketcher.Constraint("Angle", 14, Q("30 deg")))
sketch3.addConstraint(Sketcher.Constraint("Angle", 18, Q("12 deg")))
sketch3.addConstraint(Sketcher.Constraint("Radius", 1, 30.25))
sketch3.addConstraint(Sketcher.Constraint("Radius", 3, 56.75))
sketch3.addConstraint(Sketcher.Constraint("DistanceY", -1, 1, 13, 1, 15.125))
sketch3.addConstraint(Sketcher.Constraint("DistanceX", -1, 1, 33, 1, 15.125))
sketch3.addConstraint(Sketcher.Constraint("DistanceY", 53, 1, -1, 1, 15.125))
sketch3.addConstraint(Sketcher.Constraint("DistanceX", 73, 1, -1, 1, 15.125))
sketch3.addConstraint(Sketcher.Constraint("DistanceX", -1, 1, 9, 1, 20.241201))
sketch3.addConstraint(Sketcher.Constraint("DistanceY", 29, 1, -1, 1, 20.241201))
sketch3.addConstraint(Sketcher.Constraint("DistanceX", 49, 1, -1, 1, 20.241201))
sketch3.addConstraint(Sketcher.Constraint("DistanceY", -1, 1, 69, 1, 20.241201))
sketch3.addConstraint(Sketcher.Constraint("DistanceX", -1, 1, 2, 2, 5.93199))
sketch3.addConstraint(Sketcher.Constraint("DistanceY", -1, 1, 4, 2, 28.76946))
sketch3.addConstraint(Sketcher.Constraint("DistanceY", -1, 1, 5, 1, 27.63475))
sketch3.addConstraint(Sketcher.Constraint("DistanceX", -1, 1, 16, 2, 28.76946))
sketch3.addConstraint(Sketcher.Constraint("DistanceY", -1, 1, 17, 1, 6.289329))
sketch3.addConstraint(Sketcher.Constraint("DistanceY", 22, 2, -1, 1, 5.93199))
sketch3.addConstraint(Sketcher.Constraint("DistanceX", -1, 1, 25, 1, 27.63475))
sketch3.addConstraint(Sketcher.Constraint("DistanceX", -1, 1, 37, 1, 6.289329))
sketch3.addConstraint(Sketcher.Constraint("DistanceX", 42, 2, -1, 1, 5.93199))
sketch3.addConstraint(Sketcher.Constraint("DistanceY", 45, 1, -1, 1, 27.63475))
sketch3.addConstraint(Sketcher.Constraint("DistanceY", 57, 1, -1, 1, 6.289329))
sketch3.addConstraint(Sketcher.Constraint("DistanceY", -1, 1, 62, 2, 5.93199))
sketch3.addConstraint(Sketcher.Constraint("DistanceX", 65, 1, -1, 1, 27.63475))
sketch3.addConstraint(Sketcher.Constraint("DistanceX", 77, 1, -1, 1, 6.289329))
sketch3.addConstraint(Sketcher.Constraint("DistanceX", -1, 1, 8, 2, 17.780504))
sketch3.addConstraint(Sketcher.Constraint("DistanceX", -1, 1, 12, 2, 24.472764))
pad2 = body.newObject("PartDesign::Pad", "Pad001")
pad2.Profile = sketch3
pad2.Length = 1
pad2.Reversed = True

doc.recompute()
